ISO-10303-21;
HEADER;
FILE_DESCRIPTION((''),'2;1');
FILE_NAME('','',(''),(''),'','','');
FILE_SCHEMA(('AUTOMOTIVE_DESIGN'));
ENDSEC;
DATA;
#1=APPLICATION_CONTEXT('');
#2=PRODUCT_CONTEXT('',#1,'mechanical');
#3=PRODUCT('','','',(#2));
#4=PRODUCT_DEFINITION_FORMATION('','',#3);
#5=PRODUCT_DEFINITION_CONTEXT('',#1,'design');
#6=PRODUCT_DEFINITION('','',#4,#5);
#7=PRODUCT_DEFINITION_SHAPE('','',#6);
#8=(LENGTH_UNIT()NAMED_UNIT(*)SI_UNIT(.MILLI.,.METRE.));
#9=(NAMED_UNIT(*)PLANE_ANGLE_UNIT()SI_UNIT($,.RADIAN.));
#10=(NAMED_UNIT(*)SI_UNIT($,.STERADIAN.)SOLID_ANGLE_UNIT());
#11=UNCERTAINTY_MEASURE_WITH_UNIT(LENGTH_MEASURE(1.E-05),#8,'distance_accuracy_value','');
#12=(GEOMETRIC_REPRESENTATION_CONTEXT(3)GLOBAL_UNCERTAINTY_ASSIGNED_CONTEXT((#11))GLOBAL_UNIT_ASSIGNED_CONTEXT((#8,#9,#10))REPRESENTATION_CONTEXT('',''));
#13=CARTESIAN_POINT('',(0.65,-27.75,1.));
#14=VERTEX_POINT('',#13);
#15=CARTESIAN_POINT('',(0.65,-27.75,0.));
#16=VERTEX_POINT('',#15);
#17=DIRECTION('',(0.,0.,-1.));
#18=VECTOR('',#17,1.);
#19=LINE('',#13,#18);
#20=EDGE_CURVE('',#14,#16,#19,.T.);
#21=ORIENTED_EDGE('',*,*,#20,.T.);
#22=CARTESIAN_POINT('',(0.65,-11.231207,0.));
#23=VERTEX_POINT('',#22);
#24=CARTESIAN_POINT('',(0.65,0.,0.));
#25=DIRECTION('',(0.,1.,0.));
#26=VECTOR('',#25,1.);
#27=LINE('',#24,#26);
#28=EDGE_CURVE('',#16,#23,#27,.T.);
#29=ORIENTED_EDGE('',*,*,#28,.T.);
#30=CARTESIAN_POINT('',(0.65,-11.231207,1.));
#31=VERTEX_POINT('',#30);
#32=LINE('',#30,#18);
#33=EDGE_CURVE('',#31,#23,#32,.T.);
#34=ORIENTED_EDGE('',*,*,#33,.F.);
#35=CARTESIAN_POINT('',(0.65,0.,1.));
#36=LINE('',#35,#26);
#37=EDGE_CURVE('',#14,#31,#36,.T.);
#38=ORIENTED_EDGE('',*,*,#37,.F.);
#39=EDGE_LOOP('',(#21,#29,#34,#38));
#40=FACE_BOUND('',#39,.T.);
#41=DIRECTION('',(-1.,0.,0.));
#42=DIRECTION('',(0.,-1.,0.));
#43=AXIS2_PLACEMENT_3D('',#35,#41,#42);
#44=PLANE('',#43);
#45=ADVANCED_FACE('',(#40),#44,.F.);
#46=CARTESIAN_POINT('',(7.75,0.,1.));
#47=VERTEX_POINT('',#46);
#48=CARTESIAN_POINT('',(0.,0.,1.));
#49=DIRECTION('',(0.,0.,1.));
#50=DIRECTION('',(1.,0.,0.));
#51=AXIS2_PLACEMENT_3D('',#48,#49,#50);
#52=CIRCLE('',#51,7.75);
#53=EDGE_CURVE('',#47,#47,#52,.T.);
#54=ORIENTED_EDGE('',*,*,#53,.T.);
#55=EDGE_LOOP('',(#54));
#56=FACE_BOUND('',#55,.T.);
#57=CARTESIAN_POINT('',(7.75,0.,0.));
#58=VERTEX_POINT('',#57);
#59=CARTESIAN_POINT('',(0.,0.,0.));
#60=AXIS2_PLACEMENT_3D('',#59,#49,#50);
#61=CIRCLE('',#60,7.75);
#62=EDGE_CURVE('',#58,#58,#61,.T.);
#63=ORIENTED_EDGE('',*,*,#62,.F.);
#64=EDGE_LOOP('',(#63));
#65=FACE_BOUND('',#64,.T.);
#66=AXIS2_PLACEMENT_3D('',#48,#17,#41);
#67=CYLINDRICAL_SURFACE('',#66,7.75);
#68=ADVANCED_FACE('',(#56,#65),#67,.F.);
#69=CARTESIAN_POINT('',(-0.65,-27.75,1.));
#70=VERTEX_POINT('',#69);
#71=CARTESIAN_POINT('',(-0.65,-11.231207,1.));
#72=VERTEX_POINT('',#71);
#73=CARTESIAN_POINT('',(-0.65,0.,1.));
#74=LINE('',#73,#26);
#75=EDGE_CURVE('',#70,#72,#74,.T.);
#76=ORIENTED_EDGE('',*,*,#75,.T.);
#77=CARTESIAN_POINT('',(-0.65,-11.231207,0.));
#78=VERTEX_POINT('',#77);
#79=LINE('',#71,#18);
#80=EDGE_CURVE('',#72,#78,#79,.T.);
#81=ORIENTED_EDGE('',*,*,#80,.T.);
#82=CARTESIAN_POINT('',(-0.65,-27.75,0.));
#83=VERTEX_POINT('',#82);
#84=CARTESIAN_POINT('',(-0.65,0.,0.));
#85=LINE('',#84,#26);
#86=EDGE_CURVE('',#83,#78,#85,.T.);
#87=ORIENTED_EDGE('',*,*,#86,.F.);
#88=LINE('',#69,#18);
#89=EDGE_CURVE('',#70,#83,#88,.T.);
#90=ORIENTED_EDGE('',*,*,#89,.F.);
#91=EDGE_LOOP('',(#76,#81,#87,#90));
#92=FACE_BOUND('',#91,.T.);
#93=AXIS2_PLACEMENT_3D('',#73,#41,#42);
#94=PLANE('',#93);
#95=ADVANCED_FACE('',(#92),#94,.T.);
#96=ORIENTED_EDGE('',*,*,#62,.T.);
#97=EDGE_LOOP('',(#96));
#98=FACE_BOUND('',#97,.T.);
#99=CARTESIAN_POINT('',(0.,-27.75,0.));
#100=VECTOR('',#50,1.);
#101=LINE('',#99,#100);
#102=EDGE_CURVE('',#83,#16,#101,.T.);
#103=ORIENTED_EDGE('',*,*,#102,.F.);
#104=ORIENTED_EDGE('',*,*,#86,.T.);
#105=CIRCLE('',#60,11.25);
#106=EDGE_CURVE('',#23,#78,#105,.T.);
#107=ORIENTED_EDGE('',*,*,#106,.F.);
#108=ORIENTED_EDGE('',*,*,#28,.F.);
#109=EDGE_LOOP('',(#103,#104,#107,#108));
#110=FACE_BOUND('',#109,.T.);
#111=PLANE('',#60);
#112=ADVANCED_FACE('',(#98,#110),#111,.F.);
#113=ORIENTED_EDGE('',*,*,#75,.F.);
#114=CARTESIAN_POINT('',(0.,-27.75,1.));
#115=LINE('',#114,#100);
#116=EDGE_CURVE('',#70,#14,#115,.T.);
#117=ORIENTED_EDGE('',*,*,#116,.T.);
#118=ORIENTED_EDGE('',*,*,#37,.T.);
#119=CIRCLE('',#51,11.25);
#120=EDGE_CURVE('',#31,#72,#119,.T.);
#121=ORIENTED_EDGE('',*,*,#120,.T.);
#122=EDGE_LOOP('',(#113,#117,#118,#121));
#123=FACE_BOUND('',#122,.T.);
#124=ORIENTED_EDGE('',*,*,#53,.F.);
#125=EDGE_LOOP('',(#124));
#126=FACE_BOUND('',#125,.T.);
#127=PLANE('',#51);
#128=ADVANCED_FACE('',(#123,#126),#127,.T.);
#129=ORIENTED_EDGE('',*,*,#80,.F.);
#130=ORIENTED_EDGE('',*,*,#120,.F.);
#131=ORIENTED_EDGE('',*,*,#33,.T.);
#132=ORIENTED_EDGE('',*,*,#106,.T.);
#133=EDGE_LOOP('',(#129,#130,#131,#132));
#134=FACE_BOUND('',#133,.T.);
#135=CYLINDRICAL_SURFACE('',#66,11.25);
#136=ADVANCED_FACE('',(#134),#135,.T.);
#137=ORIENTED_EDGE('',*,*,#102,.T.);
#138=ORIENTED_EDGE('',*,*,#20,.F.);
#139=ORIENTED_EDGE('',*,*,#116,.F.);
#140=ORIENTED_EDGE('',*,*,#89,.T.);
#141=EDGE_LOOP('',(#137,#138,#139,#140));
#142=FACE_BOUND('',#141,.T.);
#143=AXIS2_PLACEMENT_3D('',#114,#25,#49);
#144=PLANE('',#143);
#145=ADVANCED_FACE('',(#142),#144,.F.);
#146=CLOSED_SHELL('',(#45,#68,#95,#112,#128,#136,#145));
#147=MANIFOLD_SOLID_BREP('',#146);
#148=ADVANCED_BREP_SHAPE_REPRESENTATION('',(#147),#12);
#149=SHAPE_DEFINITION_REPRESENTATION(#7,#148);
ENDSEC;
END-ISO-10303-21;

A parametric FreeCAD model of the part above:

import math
import FreeCAD as App
import Part
import Sketcher

V = App.Vector

doc = App.newDocument("Part")
body = doc.addObject("PartDesign::Body", "Body")

sketch1 = body.newObject("Sketcher::SketchObject", "Sketch")
sketch1.AttachmentSupport = (doc.getObject("XY_Plane"), [""])
sketch1.MapMode = "FlatFace"
sketch1.addGeometry(Part.ArcOfCircle(Part.Circle(V(0, 0, 0), V(0, 0, 1), 11.2), math.radians(0), math.radians(267)), False)
sketch1.addGeometry(Part.LineSegment(V(-0.7, -11.2, 0), V(-0.7, -27.8, 0)), False)
sketch1.addGeometry(Part.LineSegment(V(-0.7, -27.8, 0), V(0.7, -27.8, 0)), False)
sketch1.addGeometry(Part.LineSegment(V(0.7, -27.8, 0), V(0.7, -11.2, 0)), False)
sketch1.addGeometry(Part.ArcOfCircle(Part.Circle(V(0, 0, 0), V(0, 0, 1), 11.2), math.radians(-87), math.radians(0)), False)
sketch1.addGeometry(Part.ArcOfCircle(Part.Circle(V(0, 0, 0), V(0, 0, 1), 7.8), math.radians(-90), math.radians(0)), False)
sketch1.addGeometry(Part.ArcOfCircle(Part.Circle(V(0, 0, 0), V(0, 0, 1), 7.8), math.radians(0), math.radians(270)), False)
sketch1.addConstraint(Sketcher.Constraint("Coincident", 0, 2, 1, 1))
sketch1.addConstraint(Sketcher.Constraint("Coincident", 1, 2, 2, 1))
sketch1.addConstraint(Sketcher.Constraint("Coincident", 2, 2, 3, 1))
sketch1.addConstraint(Sketcher.Constraint("Coincident", 3, 2, 4, 1))
sketch1.addConstraint(Sketcher.Constraint("Tangent", 4, 2, 0, 1))
sketch1.addConstraint(Sketcher.Constraint("Tangent", 5, 1, 6, 2))
sketch1.addConstraint(Sketcher.Constraint("Coincident", 6, 1, 5, 2))
sketch1.addConstraint(Sketcher.Constraint("Vertical", 1))
sketch1.addConstraint(Sketcher.Constraint("Horizontal", 2))
sketch1.addConstraint(Sketcher.Constraint("Vertical", 3))
sketch1.addConstraint(Sketcher.Constraint("Coincident", 0, 3, -1, 1))
sketch1.addConstraint(Sketcher.Constraint("Coincident", 5, 3, -1, 1))
sketch1.addConstraint(Sketcher.Constraint("Equal", 0, 4))
sketch1.addConstraint(Sketcher.Constraint("PointOnObject", 4, 2, -1))
sketch1.addConstraint(Sketcher.Constraint("PointOnObject", 5, 1, -2))
sketch1.addConstraint(Sketcher.Constraint("PointOnObject", 6, 1, -1))
sketch1.addConstraint(Sketcher.Constraint("Horizontal", 0, 2, 3, 2))
sketch1.addConstraint(Sketcher.Constraint("Radius", 0, 11.25))
sketch1.addConstraint(Sketcher.Constraint("Radius", 5, 7.75))
sketch1.addConstraint(Sketcher.Constraint("DistanceX", 2, 1, 2, 2, 1.3))
sketch1.addConstraint(Sketcher.Constraint("DistanceY", 1, 2, -1, 1, 27.75))
pad1 = body.newObject("PartDesign::Pad", "Pad")
pad1.Profile = sketch1
pad1.Length = 1

doc.recompute()
